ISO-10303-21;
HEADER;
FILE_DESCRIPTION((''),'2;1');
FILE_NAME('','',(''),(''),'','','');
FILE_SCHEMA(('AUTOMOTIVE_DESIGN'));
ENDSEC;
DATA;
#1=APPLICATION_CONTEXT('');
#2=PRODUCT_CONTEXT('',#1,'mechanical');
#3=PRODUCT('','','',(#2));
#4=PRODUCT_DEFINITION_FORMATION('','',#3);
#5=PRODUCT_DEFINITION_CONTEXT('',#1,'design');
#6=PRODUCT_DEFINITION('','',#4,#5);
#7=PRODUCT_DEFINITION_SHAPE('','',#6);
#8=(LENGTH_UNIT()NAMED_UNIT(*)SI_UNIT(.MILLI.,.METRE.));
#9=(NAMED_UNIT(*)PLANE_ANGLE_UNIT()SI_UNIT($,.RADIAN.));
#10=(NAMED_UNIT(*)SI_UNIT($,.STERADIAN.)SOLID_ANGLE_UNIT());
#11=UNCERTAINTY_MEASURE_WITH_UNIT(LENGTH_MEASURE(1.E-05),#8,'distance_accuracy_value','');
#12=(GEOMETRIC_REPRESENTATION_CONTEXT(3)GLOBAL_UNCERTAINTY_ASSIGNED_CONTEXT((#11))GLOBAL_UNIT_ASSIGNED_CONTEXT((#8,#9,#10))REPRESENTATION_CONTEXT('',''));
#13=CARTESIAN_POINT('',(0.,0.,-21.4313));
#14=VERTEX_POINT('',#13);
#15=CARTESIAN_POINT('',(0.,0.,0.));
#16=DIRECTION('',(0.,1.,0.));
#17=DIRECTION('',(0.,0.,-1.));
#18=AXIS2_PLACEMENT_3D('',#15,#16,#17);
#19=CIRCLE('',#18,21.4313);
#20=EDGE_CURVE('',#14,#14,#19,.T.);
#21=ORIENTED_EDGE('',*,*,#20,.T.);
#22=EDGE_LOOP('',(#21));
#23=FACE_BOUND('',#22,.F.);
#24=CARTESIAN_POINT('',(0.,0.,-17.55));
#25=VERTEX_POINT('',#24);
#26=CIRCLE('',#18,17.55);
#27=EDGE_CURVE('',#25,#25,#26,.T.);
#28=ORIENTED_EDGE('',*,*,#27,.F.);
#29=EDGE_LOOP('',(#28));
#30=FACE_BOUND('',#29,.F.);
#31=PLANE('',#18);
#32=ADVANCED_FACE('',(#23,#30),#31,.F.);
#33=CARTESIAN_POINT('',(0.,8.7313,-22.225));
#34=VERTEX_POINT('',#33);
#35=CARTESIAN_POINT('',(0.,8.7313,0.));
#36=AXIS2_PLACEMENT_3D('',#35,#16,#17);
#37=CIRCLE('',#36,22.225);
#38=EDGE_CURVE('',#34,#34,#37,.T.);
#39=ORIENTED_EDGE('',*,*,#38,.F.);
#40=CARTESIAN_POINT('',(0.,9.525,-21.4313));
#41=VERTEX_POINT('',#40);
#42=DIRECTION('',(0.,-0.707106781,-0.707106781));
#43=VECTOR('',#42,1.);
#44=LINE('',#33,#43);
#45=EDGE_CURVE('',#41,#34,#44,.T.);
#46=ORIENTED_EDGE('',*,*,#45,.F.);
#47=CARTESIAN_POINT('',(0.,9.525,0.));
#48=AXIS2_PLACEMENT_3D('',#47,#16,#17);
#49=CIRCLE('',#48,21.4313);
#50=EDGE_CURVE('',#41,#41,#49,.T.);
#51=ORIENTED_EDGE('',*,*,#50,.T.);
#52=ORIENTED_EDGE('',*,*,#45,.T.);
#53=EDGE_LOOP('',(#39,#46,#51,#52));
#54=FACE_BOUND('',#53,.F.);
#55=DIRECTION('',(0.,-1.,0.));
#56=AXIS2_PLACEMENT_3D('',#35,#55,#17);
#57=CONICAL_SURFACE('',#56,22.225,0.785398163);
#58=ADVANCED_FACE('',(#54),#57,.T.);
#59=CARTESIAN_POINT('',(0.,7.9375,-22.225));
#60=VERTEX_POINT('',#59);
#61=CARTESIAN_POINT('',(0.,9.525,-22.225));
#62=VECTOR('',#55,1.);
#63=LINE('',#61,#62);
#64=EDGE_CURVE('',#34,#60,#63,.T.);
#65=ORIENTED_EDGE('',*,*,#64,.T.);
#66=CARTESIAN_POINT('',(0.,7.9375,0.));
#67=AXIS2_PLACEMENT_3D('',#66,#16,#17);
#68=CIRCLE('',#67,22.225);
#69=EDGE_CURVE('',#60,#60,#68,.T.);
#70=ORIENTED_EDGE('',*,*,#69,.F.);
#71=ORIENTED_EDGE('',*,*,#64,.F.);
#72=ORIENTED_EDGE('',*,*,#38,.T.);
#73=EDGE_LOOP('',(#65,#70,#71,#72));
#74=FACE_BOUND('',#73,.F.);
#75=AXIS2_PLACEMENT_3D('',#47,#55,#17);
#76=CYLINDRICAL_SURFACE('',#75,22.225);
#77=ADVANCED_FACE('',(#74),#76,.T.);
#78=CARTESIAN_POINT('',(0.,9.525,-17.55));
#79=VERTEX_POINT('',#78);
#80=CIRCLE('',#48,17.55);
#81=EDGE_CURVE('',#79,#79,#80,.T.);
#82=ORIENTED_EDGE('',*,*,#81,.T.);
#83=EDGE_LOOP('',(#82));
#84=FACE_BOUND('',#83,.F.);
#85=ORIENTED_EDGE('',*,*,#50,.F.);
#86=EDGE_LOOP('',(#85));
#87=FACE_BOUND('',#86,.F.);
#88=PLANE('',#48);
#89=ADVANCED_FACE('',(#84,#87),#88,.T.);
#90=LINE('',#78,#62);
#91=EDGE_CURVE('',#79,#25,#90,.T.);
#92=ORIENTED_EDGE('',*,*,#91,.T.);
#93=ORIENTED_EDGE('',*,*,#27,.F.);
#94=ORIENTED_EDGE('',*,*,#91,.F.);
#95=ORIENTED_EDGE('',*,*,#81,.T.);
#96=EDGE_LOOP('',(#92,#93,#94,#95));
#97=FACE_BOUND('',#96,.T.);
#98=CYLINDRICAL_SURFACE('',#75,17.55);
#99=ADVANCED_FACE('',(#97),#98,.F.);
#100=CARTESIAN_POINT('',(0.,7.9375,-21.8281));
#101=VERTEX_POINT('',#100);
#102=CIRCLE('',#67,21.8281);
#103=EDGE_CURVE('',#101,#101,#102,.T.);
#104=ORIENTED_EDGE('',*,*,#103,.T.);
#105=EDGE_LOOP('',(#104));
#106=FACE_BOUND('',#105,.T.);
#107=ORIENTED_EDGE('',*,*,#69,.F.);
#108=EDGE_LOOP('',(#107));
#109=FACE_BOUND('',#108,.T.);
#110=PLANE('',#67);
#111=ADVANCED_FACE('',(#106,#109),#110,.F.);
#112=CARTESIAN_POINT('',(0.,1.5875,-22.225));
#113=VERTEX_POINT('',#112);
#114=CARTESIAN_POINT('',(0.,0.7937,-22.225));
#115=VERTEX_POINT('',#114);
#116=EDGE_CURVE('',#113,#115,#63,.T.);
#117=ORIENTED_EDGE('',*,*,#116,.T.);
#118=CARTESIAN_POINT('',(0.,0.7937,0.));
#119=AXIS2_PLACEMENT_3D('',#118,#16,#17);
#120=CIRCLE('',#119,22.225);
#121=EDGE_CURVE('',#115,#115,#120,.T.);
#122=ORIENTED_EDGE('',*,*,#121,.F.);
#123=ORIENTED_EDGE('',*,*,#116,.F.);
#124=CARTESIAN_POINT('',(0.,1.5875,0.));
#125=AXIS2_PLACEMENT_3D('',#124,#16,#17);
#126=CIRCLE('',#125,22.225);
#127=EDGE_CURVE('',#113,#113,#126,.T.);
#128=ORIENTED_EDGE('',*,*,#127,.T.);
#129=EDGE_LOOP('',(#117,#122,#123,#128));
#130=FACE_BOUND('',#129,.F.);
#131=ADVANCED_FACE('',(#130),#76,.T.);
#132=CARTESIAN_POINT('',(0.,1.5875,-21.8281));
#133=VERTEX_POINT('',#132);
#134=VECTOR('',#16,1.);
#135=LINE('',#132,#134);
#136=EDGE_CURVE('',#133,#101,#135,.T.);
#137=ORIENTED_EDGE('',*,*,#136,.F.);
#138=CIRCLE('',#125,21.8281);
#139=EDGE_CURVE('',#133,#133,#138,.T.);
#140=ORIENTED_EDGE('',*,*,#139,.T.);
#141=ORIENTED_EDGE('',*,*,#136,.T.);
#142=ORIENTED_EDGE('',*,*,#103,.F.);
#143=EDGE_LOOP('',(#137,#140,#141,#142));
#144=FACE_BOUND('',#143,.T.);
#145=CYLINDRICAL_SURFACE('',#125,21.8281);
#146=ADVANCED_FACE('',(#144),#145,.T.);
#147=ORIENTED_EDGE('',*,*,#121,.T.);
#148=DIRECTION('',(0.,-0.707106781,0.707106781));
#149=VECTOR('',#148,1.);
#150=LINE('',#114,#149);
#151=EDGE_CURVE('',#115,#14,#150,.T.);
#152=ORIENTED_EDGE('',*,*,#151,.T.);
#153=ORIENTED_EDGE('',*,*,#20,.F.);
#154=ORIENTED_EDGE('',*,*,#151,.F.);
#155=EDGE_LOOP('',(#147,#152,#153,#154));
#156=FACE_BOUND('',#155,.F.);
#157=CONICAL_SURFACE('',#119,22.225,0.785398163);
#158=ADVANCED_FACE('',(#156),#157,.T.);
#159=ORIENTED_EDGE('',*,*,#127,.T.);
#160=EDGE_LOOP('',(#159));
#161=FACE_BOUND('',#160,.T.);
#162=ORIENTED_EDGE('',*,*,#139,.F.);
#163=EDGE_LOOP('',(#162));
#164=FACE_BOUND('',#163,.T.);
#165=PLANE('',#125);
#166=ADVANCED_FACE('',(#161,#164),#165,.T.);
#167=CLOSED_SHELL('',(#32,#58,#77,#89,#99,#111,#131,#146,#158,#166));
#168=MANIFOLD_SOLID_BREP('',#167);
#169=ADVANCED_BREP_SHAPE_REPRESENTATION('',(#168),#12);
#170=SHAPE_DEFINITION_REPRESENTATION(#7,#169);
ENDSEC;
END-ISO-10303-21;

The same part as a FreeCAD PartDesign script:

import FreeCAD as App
import Part
import Sketcher

V = App.Vector
Q = App.Units.Quantity


def edges_at(feature, points):
    """Names of the edges that pass closest to the given points."""
    edges = feature.Shape.Edges
    near = lambda p: min(range(len(edges)), key=lambda i: edges[i].distToShape(Part.Vertex(*p))[0])
    return sorted({f"Edge{near(p) + 1}" for p in points})

doc = App.newDocument("Part")
body = doc.addObject("PartDesign::Body", "Body")

# Sketch on YZ plane
sketch1 = body.newObject("Sketcher::SketchObject", "Sketch")
sketch1.AttachmentSupport = (doc.getObject("YZ_Plane"), [""])
sketch1.MapMode = "FlatFace"
sketch1.addGeometry([
    Part.LineSegment(V(9.53, -17.55, 0), V(0, -17.55, 0)),  # 0
    Part.LineSegment(V(0, -17.55, 0), V(0, -22.23, 0)),  # 1
    Part.LineSegment(V(0, -22.23, 0), V(1.59, -22.23, 0)),  # 2
    Part.LineSegment(V(1.59, -22.23, 0), V(1.59, -21.83, 0)),  # 3
    Part.LineSegment(V(1.59, -21.83, 0), V(7.94, -21.83, 0)),  # 4
    Part.LineSegment(V(7.94, -21.83, 0), V(7.94, -22.23, 0)),  # 5
    Part.LineSegment(V(7.94, -22.23, 0), V(9.53, -22.23, 0)),  # 6
    Part.LineSegment(V(9.53, -22.23, 0), V(9.53, -17.55, 0)),  # 7
], False)
sketch1.addConstraint([
    Sketcher.Constraint("Coincident", 0, 2, 1, 1),
    Sketcher.Constraint("Coincident", 1, 2, 2, 1),
    Sketcher.Constraint("Coincident", 2, 2, 3, 1),
    Sketcher.Constraint("Coincident", 3, 2, 4, 1),
    Sketcher.Constraint("Coincident", 4, 2, 5, 1),
    Sketcher.Constraint("Coincident", 5, 2, 6, 1),
    Sketcher.Constraint("Coincident", 6, 2, 7, 1),
    Sketcher.Constraint("Coincident", 7, 2, 0, 1),
    Sketcher.Constraint("Horizontal", 0),
    Sketcher.Constraint("Vertical", 1),
    Sketcher.Constraint("Horizontal", 2),
    Sketcher.Constraint("Vertical", 3),
    Sketcher.Constraint("Horizontal", 4),
    Sketcher.Constraint("Vertical", 5),
    Sketcher.Constraint("Horizontal", 6),
    Sketcher.Constraint("Vertical", 7),
    Sketcher.Constraint("PointOnObject", 0, 2, -2),
    Sketcher.Constraint("Horizontal", 2, 2, 5, 2),
    Sketcher.Constraint("Equal", 2, 6),
    Sketcher.Constraint("DistanceX", 4, 1, 4, 2, Q("0.25 in")),
    Sketcher.Constraint("DistanceX", 0, 2, 0, 1, Q("0.375 in")),
    Sketcher.Constraint("DistanceY", 1, 2, -1, 1, Q("0.875 in")),
    Sketcher.Constraint("DistanceY", 3, 1, 3, 2, Q("0.0156299 in")),
    Sketcher.Constraint("DistanceY", 0, 2, -1, 1, 17.55),
])
revolution = body.newObject("PartDesign::Revolution", "Revolution")
revolution.Profile = sketch1
revolution.ReferenceAxis = (sketch1, ["H_Axis"])
revolution.Angle = 360
doc.recompute()

chamfer = body.newObject("PartDesign::Chamfer", "Chamfer")
chamfer.Base = (revolution, edges_at(revolution, [(0, 9.525, 22.225), (0, 0, 22.225)]))
chamfer.Size = Q("0.031248 in")

doc.recompute()
